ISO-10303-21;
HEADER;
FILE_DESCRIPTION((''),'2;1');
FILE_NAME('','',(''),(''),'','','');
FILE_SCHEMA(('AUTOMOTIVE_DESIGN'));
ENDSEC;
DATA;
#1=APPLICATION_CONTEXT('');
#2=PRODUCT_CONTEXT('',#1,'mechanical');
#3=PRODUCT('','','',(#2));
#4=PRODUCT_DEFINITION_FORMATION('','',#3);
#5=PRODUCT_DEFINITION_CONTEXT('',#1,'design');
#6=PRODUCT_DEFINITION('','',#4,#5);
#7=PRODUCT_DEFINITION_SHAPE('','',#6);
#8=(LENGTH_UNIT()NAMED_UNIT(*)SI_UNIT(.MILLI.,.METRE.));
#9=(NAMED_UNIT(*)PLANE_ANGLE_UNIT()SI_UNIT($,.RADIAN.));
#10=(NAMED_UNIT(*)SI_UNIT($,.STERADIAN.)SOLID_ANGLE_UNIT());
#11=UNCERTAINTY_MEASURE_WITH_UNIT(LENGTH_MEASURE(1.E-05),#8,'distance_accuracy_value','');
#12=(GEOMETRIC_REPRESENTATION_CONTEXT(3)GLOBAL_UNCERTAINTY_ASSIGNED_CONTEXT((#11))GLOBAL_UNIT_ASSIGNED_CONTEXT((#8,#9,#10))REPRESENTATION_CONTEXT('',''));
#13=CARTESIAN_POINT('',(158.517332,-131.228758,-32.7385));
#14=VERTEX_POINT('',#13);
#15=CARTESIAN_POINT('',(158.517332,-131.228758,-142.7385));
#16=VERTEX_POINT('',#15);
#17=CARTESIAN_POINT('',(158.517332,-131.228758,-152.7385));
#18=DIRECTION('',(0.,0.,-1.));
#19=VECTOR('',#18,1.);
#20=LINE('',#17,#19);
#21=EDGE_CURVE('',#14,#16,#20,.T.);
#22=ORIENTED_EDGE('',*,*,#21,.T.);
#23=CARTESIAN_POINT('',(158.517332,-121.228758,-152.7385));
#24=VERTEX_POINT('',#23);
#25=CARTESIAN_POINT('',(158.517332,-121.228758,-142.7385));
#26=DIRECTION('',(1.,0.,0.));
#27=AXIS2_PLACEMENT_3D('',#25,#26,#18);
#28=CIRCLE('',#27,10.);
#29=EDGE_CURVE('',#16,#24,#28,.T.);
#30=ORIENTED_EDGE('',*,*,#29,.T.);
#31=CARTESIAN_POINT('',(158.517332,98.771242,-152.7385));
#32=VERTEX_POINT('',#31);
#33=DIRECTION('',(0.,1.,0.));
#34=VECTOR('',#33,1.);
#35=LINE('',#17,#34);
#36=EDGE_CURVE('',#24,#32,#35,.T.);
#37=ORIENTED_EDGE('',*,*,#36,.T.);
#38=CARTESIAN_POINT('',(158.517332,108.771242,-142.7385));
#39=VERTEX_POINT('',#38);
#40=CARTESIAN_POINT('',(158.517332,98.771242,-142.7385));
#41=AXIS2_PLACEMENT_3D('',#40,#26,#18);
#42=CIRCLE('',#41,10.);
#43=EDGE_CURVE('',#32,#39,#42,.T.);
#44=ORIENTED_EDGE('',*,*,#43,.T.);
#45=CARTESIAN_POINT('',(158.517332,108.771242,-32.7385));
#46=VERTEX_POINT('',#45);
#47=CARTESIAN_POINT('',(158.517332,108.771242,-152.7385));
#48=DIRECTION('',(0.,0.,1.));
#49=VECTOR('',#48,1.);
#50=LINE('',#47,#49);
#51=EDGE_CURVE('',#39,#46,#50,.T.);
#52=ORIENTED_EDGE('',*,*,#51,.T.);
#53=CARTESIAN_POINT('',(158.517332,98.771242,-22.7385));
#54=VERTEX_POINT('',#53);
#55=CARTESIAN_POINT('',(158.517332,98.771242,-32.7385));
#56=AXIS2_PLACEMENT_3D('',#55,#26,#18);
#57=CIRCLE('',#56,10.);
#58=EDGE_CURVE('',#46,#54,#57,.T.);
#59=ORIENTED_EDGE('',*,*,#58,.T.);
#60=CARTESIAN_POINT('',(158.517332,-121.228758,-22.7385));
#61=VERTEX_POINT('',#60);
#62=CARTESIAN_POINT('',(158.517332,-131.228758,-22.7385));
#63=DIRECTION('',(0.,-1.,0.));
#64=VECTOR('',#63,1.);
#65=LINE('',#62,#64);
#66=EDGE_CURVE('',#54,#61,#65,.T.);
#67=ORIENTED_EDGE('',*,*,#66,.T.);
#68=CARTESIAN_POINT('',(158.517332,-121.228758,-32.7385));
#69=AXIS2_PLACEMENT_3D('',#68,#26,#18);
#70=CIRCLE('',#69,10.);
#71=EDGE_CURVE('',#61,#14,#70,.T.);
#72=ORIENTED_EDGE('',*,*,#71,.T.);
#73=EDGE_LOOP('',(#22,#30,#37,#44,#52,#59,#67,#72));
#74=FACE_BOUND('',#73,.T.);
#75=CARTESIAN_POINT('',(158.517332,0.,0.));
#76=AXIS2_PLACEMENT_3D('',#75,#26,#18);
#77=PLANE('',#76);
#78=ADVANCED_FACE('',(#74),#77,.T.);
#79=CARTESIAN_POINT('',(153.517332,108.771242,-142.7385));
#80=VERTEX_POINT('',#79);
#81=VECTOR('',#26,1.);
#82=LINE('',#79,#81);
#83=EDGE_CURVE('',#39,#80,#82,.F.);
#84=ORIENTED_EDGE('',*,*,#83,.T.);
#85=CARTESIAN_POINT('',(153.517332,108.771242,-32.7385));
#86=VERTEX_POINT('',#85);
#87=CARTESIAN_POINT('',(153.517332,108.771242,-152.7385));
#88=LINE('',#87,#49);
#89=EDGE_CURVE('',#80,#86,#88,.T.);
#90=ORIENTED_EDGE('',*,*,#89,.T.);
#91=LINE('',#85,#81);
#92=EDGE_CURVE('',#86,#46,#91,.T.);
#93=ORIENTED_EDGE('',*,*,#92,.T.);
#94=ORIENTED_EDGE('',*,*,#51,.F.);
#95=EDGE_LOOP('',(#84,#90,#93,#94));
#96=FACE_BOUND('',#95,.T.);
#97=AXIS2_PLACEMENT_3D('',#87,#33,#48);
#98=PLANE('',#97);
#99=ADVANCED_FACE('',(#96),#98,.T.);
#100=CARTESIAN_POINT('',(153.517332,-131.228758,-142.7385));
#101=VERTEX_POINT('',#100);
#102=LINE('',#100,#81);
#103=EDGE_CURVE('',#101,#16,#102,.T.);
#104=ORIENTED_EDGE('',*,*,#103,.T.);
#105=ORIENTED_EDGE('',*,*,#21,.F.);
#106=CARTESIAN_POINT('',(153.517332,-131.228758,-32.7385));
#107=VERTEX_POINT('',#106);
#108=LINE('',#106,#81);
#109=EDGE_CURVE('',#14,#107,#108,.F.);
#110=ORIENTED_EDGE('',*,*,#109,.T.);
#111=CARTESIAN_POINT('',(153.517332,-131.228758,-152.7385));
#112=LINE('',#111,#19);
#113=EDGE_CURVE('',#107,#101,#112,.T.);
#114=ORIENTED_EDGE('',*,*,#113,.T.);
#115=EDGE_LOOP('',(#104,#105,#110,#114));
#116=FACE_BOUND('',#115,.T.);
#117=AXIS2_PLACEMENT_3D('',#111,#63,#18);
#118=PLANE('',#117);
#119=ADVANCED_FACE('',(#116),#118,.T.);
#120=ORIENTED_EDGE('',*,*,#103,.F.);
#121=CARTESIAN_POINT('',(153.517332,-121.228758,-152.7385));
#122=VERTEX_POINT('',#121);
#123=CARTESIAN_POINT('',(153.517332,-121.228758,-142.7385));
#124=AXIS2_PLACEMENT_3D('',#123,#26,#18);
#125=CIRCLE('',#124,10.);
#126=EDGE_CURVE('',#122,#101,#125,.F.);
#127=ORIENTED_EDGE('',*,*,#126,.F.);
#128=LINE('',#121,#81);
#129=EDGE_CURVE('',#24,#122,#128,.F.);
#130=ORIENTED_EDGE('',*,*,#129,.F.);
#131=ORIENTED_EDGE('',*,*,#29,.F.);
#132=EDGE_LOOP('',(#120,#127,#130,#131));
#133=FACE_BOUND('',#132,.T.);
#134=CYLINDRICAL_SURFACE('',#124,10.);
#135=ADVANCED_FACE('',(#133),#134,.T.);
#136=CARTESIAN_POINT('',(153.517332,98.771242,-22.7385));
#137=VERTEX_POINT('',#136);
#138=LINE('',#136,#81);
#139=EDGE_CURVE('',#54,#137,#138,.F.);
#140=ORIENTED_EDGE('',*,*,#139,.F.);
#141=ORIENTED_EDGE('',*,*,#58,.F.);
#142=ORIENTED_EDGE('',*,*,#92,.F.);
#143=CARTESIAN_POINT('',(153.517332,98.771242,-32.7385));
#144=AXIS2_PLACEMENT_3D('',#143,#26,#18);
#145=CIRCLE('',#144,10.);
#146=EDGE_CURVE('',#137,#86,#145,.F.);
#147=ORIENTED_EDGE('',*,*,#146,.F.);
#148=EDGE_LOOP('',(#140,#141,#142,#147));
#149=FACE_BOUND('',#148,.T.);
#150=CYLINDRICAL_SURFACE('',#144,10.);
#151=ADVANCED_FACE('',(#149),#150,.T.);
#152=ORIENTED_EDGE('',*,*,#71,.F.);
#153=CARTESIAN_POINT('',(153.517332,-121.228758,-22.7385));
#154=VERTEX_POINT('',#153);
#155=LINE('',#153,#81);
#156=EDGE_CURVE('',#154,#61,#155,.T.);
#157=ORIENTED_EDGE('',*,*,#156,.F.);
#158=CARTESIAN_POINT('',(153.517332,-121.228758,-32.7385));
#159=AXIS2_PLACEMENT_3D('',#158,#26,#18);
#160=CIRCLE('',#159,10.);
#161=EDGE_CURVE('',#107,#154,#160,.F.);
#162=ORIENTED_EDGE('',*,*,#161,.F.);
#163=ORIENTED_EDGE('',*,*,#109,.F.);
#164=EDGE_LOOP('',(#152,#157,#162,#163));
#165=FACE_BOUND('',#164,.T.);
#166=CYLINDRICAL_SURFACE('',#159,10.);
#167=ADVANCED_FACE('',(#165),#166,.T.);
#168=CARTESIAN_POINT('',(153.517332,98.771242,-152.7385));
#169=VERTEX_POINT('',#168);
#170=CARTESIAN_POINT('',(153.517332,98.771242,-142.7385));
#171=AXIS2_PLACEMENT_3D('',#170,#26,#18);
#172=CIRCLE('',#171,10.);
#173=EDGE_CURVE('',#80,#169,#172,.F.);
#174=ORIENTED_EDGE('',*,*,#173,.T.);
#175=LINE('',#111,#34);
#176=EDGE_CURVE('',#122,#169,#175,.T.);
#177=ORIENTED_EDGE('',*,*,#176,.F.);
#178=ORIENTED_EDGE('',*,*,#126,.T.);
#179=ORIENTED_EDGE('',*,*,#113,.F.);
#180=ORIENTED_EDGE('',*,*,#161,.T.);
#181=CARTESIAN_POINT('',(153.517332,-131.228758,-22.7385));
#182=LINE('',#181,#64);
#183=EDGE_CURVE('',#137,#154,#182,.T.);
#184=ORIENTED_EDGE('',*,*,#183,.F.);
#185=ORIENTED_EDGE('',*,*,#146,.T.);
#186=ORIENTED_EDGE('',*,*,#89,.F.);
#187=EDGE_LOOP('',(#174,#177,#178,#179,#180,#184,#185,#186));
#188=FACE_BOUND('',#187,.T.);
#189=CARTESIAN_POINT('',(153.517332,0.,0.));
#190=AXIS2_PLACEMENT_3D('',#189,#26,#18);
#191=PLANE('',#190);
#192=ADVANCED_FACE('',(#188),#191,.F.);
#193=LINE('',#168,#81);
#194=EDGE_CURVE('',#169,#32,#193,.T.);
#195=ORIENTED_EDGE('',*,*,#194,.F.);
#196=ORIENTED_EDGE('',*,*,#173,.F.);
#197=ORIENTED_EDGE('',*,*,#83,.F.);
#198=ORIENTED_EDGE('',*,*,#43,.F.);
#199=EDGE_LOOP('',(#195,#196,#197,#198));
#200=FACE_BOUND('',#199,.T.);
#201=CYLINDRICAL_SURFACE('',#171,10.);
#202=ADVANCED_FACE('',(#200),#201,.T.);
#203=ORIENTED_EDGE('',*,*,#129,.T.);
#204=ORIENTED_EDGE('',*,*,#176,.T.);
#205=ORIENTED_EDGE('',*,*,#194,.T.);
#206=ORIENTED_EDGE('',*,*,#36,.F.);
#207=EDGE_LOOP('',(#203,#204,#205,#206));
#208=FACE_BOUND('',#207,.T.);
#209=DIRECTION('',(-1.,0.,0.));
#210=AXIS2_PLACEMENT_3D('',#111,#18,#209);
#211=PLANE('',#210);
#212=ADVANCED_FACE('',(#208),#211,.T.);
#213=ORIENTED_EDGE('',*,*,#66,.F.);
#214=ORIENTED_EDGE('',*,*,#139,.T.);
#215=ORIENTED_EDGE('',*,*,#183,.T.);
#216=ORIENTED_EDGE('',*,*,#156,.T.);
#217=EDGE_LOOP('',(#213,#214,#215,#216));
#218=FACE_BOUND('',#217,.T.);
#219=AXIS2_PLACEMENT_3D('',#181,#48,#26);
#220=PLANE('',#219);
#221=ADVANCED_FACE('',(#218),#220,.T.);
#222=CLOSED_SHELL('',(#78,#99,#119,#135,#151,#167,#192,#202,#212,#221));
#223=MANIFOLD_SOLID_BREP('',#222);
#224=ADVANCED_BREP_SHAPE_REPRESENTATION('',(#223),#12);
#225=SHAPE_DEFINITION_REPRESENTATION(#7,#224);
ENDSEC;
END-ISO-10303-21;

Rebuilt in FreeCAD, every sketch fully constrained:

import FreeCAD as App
import Part
import Sketcher
from FreeCAD import Vector
Q = App.Units.Quantity


def edges_at(feature, points):
    """Names of the edges that pass closest to the given points."""
    edges = feature.Shape.Edges
    near = lambda p: min(range(len(edges)), key=lambda i: edges[i].distToShape(Part.Vertex(*p))[0])
    return sorted({f"Edge{near(p) + 1}" for p in points})

doc = App.newDocument("Part")
body = doc.addObject("PartDesign::Body", "Body")

sketch1 = body.newObject("Sketcher::SketchObject", "Sketch")
sketch1.AttachmentSupport = (doc.getObject("YZ_Plane"), [""])
sketch1.MapMode = "FlatFace"
sketch1.AttachmentOffset = App.Placement(Vector(0, 0, 158.517332), App.Rotation())
sketch1.addGeometry([
    Part.LineSegment(Vector(108.771242, -22.7385, 0), Vector(-131.228758, -22.7385, 0)),
    Part.LineSegment(Vector(-131.228758, -22.7385, 0), Vector(-131.228758, -152.7385, 0)),
    Part.LineSegment(Vector(-131.228758, -152.7385, 0), Vector(108.771242, -152.7385, 0)),
    Part.LineSegment(Vector(108.771242, -152.7385, 0), Vector(108.771242, -22.7385, 0)),
], False)
sketch1.addConstraint([
    Sketcher.Constraint("Coincident", 0, 2, 1, 1),
    Sketcher.Constraint("Coincident", 1, 2, 2, 1),
    Sketcher.Constraint("Coincident", 2, 2, 3, 1),
    Sketcher.Constraint("Coincident", 3, 2, 0, 1),
    Sketcher.Constraint("Horizontal", 0),
    Sketcher.Constraint("Vertical", 1),
    Sketcher.Constraint("Horizontal", 2),
    Sketcher.Constraint("Vertical", 3),
    Sketcher.Constraint("DistanceX", 0, 2, 0, 1, Q("240 mm")),
    Sketcher.Constraint("DistanceY", 1, 2, 1, 1, Q("130 mm")),
    Sketcher.Constraint("DistanceY", 0, 2, -1, 1, Q("22.7385 mm")),
    Sketcher.Constraint("DistanceX", 0, 2, -1, 1, Q("131.228758 mm")),
])
pad1 = body.newObject("PartDesign::Pad", "Pad")
pad1.Profile = sketch1
pad1.Length = 5
pad1.Reversed = True
doc.recompute()

fillet = body.newObject("PartDesign::Fillet", "Fillet")
fillet.Base = (pad1, edges_at(pad1, [
    (156.017, -131.229, -152.738),
    (156.017, -131.229, -22.738),
    (156.017, 108.771, -22.738),
    (156.017, 108.771, -152.738),
]))
fillet.Radius = 10

doc.recompute()
